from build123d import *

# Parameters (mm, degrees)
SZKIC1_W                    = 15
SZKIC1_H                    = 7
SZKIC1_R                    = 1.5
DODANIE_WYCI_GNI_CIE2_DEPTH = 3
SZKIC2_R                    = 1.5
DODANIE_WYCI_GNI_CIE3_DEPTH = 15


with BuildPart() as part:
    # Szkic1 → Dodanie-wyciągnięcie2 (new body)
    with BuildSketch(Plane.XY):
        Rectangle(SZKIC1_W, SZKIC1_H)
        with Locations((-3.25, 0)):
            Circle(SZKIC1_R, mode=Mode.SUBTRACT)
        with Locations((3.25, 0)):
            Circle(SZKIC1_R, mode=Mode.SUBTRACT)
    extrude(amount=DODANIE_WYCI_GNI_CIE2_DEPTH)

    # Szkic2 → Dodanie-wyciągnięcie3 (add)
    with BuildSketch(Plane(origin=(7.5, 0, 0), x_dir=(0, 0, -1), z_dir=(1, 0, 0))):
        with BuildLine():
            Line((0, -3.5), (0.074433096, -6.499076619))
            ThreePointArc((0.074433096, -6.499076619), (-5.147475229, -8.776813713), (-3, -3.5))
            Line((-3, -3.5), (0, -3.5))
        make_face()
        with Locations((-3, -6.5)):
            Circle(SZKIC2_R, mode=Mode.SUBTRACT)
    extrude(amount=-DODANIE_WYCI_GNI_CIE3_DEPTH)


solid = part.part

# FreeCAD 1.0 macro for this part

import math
import FreeCAD as App
import Part
import Sketcher


def add_polygon(sketch, points):
    """Adds a closed chain of lines whose ends are joined by coincident constraints."""
    first, n = sketch.GeometryCount, len(points)
    for a, b in zip(points, points[1:] + points[:1]):
        sketch.addGeometry(Part.LineSegment(App.Vector(*a, 0), App.Vector(*b, 0)), False)
    for i in range(n):
        sketch.addConstraint(Sketcher.Constraint("Coincident", first + i, 2, first + (i + 1) % n, 1))

doc = App.newDocument("Part")
body = doc.addObject("PartDesign::Body", "Body")

# Sketch on XY plane
sketch1 = body.newObject("Sketcher::SketchObject", "Sketch")
sketch1.AttachmentSupport = (doc.getObject("XY_Plane"), [""])
sketch1.MapMode = "FlatFace"
add_polygon(sketch1, [(-7.5, 3.5), (-7.5, -3.5), (7.5, -3.5), (7.5, 3.5)])  # lines 0-3
sketch1.addGeometry(Part.Circle(App.Vector(-3.2, 0, 0), App.Vector(0, 0, 1), 1.5), False)  # 4
sketch1.addGeometry(Part.Circle(App.Vector(3.2, 0, 0), App.Vector(0, 0, 1), 1.5), False)  # 5
sketch1.addConstraint([
    Sketcher.Constraint("Vertical", 0),
    Sketcher.Constraint("Horizontal", 1),
    Sketcher.Constraint("Vertical", 2),
    Sketcher.Constraint("Horizontal", 3),
    Sketcher.Constraint("Equal", 4, 5),
    Sketcher.Constraint("Symmetric", 4, 3, 5, 3, -1, 1),
    Sketcher.Constraint("Symmetric", 0, 2, 2, 2, -1, 1),
    Sketcher.Constraint("PointOnObject", 4, 3, -1),
    Sketcher.Constraint("Diameter", 4, 3.0),
    Sketcher.Constraint("DistanceX", 1, 1, 1, 2, 15.0),
    Sketcher.Constraint("DistanceY", 0, 2, 0, 1, 7.0),
    Sketcher.Constraint("DistanceX", 4, 3, 5, 3, 6.5),
])
pad1 = body.newObject("PartDesign::Pad", "Pad")
pad1.Profile = sketch1
pad1.Length = 3

# Sketch on YZ plane
sketch2 = body.newObject("Sketcher::SketchObject", "Sketch001")
sketch2.AttachmentSupport = (doc.getObject("YZ_Plane"), [""])
sketch2.MapMode = "FlatFace"
sketch2.AttachmentOffset = App.Placement(App.Vector(0, 0, 7.5), App.Rotation())
sketch2.addGeometry([
    Part.LineSegment(App.Vector(-6.5, -0.1, 0), App.Vector(-3.5, 0, 0)),
    Part.LineSegment(App.Vector(-3.5, 0, 0), App.Vector(-3.5, 3, 0)),
    Part.ArcOfCircle(Part.Circle(App.Vector(-6.6, 3, 0), App.Vector(0, 0, 1), 3.1), math.radians(0), math.radians(271)),
    Part.Circle(App.Vector(-6.5, 3, 0), App.Vector(0, 0, 1), 1.5),
], False)
sketch2.addConstraint([
    Sketcher.Constraint("Coincident", 0, 2, 1, 1),
    Sketcher.Constraint("Tangent", 1, 2, 2, 1),
    Sketcher.Constraint("Tangent", 2, 2, 0, 1),
    Sketcher.Constraint("Vertical", 1),
    Sketcher.Constraint("PointOnObject", 0, 2, -1),
    Sketcher.Constraint("Horizontal", 2, 3, 3, 3),
    Sketcher.Constraint("Diameter", 3, 3.0),
    Sketcher.Constraint("DistanceY", 1, 1, 1, 2, 3.0),
    Sketcher.Constraint("DistanceX", 3, 3, 0, 2, 3.0),
    Sketcher.Constraint("DistanceX", 3, 3, -1, 1, 6.5),
    Sketcher.Constraint("Radius", 2, 3.07538),
])
pad2 = body.newObject("PartDesign::Pad", "Pad001")
pad2.Profile = sketch2
pad2.Length = 15
pad2.Reversed = True

doc.recompute()
